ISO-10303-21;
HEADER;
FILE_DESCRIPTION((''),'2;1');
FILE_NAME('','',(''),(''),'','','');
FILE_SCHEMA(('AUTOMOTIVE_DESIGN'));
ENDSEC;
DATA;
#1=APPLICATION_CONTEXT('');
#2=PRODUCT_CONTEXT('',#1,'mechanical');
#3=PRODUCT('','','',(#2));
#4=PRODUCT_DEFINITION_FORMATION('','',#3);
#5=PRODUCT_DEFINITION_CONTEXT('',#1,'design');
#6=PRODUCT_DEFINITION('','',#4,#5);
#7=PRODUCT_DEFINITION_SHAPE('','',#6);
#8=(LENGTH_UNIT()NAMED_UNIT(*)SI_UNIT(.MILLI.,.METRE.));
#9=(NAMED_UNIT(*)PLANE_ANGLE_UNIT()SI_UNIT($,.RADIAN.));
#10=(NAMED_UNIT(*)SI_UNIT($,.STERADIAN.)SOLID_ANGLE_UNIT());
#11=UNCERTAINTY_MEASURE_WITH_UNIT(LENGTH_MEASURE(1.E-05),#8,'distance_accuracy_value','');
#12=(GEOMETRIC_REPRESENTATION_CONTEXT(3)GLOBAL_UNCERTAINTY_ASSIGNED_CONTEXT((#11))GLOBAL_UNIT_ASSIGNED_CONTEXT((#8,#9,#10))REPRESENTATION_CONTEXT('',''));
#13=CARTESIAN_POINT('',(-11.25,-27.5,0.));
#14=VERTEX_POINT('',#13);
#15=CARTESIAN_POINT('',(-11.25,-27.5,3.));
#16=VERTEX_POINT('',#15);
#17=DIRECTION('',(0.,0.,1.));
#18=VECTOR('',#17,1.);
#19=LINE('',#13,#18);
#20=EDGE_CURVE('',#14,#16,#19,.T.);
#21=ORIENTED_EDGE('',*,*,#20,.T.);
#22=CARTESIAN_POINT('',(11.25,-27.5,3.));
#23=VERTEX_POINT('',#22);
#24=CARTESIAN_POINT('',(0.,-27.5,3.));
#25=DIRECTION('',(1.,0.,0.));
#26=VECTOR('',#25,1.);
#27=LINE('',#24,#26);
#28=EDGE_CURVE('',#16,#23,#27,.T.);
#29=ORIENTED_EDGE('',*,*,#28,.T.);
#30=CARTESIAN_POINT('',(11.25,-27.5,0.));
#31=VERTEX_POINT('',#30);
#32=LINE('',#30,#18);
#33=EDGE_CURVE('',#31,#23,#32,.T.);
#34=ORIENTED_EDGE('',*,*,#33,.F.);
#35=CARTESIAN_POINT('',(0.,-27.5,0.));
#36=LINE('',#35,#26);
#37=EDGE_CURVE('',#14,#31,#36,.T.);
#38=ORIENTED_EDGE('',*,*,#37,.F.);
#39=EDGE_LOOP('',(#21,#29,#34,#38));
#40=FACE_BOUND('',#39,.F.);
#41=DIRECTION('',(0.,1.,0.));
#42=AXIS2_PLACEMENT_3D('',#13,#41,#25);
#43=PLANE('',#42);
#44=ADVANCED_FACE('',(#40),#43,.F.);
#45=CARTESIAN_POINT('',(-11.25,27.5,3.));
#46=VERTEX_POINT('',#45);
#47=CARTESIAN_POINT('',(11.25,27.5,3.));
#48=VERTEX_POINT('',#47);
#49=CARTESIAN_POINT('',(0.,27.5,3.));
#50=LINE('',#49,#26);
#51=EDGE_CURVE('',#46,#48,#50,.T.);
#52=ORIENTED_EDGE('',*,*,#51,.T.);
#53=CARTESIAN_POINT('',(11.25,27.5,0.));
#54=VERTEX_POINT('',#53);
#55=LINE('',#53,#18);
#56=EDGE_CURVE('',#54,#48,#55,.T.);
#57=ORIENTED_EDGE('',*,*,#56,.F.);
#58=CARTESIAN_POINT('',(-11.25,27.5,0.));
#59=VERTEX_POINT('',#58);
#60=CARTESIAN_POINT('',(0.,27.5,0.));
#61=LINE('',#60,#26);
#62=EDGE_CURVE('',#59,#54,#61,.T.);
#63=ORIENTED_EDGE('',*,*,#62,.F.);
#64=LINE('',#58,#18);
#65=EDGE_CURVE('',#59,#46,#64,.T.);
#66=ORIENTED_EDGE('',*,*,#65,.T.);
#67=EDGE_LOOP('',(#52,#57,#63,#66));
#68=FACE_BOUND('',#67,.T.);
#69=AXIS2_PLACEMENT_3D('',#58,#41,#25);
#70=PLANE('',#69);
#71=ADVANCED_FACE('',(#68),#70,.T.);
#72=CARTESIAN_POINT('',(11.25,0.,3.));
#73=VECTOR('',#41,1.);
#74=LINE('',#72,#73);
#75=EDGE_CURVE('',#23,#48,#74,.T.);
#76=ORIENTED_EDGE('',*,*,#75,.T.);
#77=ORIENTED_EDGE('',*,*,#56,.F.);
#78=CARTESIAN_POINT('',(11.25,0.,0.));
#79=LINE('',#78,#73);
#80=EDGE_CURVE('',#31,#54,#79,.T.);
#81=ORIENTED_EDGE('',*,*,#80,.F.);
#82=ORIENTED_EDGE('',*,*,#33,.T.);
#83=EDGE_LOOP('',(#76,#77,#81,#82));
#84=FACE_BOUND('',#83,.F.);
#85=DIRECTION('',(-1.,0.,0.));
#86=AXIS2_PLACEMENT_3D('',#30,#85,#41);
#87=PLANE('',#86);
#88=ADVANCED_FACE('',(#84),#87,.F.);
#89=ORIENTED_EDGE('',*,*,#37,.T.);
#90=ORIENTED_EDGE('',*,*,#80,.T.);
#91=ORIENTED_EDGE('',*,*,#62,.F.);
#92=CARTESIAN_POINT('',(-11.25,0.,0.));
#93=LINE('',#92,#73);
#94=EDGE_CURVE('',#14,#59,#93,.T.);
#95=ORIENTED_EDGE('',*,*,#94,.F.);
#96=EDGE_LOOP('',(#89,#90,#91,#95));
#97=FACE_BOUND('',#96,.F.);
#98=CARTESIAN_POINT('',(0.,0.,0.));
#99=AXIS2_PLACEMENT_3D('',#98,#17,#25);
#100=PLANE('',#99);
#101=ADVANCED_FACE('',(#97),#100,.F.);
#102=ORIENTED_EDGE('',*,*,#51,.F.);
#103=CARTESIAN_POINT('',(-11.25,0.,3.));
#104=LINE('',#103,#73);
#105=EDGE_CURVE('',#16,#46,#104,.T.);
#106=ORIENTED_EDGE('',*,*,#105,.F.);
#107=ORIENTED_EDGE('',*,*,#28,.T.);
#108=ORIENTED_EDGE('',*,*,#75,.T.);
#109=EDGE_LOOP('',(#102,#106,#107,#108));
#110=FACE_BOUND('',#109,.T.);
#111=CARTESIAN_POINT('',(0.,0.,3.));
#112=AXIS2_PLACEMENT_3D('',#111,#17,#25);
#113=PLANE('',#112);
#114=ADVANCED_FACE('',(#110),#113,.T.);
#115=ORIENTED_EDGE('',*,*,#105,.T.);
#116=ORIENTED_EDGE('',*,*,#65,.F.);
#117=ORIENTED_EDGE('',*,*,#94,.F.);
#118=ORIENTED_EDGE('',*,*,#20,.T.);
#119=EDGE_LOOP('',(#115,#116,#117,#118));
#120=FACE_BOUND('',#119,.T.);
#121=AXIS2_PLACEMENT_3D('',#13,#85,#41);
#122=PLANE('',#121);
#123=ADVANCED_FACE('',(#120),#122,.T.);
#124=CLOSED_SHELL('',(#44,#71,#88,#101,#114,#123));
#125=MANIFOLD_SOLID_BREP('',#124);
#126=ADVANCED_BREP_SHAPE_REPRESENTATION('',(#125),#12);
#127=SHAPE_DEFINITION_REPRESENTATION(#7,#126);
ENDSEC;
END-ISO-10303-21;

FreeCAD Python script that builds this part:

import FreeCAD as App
import Part
import Sketcher
from FreeCAD import Vector

doc = App.newDocument("Part")
body = doc.addObject("PartDesign::Body", "Body")

# Sketch on XY plane
sketch1 = body.newObject("Sketcher::SketchObject", "Sketch")
sketch1.AttachmentSupport = (doc.getObject("XY_Plane"), [""])
sketch1.MapMode = "FlatFace"
sketch1.addGeometry([
    Part.LineSegment(Vector(-11, 28, 0), Vector(-11, -28, 0)),
    Part.LineSegment(Vector(-11, -28, 0), Vector(11, -28, 0)),
    Part.LineSegment(Vector(11, -28, 0), Vector(11, 28, 0)),
    Part.LineSegment(Vector(11, 28, 0), Vector(-11, 28, 0)),
], False)
sketch1.addConstraint([
    Sketcher.Constraint("Coincident", 0, 2, 1, 1),
    Sketcher.Constraint("Coincident", 1, 2, 2, 1),
    Sketcher.Constraint("Coincident", 2, 2, 3, 1),
    Sketcher.Constraint("Coincident", 3, 2, 0, 1),
    Sketcher.Constraint("Vertical", 0),
    Sketcher.Constraint("Horizontal", 1),
    Sketcher.Constraint("Vertical", 2),
    Sketcher.Constraint("Horizontal", 3),
    Sketcher.Constraint("Symmetric", 0, 2, 2, 2, -1, 1),
    Sketcher.Constraint("DistanceY", 0, 2, 0, 1, 55.0),
    Sketcher.Constraint("DistanceX", 1, 1, 1, 2, 22.5),
])
pad1 = body.newObject("PartDesign::Pad", "Pad")
pad1.Profile = sketch1
pad1.Length = 3

doc.recompute()
